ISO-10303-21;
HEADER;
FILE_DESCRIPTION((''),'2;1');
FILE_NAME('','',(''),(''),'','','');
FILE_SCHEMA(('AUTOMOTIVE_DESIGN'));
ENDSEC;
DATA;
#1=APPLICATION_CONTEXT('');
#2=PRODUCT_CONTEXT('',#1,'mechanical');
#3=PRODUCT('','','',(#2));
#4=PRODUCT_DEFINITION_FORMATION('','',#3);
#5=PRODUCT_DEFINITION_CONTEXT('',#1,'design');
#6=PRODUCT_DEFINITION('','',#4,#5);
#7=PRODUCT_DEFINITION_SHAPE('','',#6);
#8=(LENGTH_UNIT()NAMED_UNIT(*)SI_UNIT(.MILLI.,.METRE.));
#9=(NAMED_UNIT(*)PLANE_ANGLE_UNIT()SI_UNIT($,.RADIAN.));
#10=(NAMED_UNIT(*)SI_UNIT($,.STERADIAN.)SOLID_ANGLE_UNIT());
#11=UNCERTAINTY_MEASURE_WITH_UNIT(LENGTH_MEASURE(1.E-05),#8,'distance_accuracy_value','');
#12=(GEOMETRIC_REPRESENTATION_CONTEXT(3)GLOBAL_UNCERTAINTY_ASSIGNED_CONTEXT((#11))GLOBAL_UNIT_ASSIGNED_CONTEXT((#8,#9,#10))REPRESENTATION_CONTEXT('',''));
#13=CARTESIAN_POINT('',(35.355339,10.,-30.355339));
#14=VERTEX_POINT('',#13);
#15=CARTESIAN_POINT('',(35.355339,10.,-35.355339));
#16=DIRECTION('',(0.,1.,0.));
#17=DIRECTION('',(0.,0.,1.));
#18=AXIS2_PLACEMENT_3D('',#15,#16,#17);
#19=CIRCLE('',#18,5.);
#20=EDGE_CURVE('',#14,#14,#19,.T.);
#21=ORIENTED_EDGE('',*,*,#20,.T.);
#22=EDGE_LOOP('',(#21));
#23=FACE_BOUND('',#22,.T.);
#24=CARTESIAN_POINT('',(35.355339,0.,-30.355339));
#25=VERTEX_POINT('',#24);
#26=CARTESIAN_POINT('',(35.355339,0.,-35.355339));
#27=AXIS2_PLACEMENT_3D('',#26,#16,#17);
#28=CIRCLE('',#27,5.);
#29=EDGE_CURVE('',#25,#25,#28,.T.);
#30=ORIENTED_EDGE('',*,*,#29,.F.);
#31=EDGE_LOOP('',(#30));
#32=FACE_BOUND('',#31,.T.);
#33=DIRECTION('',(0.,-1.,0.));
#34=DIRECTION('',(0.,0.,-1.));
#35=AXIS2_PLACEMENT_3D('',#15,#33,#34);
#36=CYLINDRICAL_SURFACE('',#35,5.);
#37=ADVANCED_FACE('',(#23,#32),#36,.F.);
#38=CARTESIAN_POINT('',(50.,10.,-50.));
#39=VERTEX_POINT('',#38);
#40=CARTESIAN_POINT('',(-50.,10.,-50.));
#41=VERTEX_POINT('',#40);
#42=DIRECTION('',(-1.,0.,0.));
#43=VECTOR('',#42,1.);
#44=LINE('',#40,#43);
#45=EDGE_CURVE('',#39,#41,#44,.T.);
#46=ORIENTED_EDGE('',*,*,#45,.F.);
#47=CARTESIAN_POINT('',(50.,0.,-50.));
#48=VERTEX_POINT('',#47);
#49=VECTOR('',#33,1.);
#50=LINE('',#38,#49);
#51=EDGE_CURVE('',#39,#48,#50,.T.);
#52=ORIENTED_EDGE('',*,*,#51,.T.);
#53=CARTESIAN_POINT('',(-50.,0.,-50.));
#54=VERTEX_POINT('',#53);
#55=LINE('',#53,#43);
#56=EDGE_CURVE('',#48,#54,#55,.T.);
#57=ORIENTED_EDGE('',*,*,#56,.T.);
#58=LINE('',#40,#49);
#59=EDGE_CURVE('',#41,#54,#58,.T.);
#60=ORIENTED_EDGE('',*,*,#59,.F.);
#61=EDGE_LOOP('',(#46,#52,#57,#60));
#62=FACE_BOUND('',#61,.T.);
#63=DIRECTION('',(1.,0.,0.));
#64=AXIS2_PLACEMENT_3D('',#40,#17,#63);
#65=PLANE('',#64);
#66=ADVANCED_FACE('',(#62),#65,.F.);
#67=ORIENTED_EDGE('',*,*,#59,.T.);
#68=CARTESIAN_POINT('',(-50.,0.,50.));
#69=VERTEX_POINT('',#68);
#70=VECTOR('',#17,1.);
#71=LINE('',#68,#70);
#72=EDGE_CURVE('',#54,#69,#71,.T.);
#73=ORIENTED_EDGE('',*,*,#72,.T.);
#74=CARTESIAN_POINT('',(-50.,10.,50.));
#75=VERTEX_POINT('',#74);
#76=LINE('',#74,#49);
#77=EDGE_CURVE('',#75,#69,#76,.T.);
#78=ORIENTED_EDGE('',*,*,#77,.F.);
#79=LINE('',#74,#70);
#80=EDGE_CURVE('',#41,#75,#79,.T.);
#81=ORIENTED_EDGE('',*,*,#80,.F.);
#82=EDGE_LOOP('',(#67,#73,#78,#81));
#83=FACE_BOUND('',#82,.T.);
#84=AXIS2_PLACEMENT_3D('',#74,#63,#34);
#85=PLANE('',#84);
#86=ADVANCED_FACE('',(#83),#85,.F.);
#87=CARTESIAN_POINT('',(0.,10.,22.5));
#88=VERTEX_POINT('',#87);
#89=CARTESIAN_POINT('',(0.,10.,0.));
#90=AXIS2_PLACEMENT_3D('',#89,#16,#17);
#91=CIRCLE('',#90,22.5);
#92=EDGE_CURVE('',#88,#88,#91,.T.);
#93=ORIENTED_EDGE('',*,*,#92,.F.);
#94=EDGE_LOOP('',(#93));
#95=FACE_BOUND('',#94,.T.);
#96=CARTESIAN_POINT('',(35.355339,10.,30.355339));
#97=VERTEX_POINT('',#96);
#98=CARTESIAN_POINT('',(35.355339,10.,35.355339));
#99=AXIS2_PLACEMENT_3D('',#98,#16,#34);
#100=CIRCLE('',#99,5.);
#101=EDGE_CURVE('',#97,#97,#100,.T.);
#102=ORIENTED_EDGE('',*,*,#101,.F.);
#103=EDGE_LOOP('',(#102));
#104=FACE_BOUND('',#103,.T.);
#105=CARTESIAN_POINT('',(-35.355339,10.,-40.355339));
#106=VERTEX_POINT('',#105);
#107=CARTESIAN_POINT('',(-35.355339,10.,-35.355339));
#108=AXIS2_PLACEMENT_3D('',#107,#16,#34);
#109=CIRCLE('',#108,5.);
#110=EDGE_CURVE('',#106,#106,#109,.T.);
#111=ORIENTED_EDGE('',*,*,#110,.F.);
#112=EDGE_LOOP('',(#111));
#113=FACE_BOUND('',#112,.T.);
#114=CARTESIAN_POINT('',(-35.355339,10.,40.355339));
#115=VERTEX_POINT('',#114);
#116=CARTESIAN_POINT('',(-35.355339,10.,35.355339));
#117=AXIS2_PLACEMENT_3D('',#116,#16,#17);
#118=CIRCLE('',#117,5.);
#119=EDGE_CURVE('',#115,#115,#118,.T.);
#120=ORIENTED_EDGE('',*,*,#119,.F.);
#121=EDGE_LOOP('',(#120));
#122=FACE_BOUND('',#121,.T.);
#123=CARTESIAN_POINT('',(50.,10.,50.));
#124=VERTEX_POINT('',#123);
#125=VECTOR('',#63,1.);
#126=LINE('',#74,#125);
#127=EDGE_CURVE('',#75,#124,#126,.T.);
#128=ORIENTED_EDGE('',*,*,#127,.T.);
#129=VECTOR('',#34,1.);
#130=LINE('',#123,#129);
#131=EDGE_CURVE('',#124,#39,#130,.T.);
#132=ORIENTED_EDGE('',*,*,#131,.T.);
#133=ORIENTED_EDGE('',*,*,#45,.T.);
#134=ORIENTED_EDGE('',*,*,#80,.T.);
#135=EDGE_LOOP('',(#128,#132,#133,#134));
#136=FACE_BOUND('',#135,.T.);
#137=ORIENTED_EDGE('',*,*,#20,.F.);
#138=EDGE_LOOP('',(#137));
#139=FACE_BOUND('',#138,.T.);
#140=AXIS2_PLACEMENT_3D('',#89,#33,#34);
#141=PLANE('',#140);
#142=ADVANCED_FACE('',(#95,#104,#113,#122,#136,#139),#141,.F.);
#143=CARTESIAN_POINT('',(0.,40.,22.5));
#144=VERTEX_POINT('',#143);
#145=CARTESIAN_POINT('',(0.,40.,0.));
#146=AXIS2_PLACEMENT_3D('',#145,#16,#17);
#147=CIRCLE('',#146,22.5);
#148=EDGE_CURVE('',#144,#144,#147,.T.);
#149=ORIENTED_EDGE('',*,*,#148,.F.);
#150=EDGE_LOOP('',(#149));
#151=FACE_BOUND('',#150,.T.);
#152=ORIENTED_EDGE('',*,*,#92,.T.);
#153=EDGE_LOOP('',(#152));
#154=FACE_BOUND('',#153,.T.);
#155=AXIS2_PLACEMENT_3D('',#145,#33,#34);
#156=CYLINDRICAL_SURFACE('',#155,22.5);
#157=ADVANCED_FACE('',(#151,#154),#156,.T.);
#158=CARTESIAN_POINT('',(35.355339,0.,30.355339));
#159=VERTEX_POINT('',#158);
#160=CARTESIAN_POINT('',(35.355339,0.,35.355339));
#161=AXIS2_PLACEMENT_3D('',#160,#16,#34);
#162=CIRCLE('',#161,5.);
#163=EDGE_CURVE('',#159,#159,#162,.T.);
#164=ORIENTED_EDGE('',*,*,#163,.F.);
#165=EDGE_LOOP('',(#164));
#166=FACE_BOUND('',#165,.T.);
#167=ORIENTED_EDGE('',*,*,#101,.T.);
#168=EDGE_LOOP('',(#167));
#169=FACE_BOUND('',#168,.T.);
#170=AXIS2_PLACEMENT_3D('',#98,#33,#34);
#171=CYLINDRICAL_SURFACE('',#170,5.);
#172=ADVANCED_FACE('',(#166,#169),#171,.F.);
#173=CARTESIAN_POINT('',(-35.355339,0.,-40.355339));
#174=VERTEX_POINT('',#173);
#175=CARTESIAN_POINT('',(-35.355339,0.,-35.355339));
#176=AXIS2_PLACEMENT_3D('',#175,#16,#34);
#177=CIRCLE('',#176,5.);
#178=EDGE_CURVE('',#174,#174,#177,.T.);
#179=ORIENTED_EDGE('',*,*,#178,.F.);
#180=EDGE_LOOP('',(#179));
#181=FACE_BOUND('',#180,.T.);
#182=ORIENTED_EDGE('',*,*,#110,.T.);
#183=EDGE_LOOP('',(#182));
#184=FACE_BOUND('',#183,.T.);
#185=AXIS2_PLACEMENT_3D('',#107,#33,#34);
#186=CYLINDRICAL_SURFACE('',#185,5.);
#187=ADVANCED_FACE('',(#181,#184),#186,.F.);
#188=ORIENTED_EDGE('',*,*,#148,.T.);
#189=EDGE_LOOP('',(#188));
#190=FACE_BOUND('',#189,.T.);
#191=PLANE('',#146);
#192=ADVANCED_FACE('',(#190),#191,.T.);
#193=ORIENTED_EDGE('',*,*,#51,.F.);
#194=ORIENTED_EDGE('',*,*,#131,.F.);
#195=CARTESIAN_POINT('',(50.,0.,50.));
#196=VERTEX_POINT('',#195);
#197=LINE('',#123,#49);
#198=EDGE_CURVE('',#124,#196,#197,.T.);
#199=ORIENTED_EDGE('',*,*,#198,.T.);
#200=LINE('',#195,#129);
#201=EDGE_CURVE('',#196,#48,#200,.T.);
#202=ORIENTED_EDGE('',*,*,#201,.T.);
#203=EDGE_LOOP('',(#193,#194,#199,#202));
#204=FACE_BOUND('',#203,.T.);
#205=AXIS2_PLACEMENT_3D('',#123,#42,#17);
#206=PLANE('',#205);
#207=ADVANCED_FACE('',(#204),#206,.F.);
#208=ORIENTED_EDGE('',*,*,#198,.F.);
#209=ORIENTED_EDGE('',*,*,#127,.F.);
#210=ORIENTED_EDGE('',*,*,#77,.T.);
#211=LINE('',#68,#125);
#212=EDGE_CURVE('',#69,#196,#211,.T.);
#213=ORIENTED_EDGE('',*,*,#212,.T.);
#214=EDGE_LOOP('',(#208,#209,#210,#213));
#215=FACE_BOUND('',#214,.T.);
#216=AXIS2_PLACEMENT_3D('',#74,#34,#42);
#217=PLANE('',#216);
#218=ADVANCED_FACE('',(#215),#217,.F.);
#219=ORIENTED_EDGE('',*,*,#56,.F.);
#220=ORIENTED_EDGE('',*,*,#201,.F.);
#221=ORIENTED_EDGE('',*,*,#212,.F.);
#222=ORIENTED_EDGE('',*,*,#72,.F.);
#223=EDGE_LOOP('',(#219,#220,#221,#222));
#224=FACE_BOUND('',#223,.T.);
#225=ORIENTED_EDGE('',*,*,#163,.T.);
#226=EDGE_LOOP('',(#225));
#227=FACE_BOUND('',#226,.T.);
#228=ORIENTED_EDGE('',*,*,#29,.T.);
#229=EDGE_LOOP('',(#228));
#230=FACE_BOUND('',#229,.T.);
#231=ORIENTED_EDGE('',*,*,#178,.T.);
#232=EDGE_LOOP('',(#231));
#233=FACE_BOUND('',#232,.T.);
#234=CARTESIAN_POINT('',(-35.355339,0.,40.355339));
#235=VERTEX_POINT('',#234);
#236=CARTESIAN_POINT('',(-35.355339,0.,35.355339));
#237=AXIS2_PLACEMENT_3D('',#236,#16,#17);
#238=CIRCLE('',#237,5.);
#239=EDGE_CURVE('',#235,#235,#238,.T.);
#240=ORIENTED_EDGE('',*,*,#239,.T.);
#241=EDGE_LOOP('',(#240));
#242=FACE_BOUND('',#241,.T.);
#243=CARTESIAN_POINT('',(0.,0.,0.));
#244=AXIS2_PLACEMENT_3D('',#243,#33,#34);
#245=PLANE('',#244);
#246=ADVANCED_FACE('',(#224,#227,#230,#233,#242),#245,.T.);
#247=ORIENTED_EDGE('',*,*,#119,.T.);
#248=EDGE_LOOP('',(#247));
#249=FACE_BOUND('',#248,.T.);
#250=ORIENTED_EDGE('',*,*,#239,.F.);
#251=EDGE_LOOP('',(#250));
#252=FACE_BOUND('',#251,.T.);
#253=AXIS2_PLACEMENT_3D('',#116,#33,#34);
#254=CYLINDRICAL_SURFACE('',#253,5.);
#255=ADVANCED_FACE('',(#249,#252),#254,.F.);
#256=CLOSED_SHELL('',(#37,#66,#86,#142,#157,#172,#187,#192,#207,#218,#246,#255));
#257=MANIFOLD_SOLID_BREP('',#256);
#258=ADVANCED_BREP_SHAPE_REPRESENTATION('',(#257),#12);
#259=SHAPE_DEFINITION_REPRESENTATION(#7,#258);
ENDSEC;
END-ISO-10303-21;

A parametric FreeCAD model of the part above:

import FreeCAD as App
import Part
import Sketcher

V = App.Vector


def add_polygon(sketch, points):
    """Adds a closed chain of lines whose ends are joined by coincident constraints."""
    first, n = sketch.GeometryCount, len(points)
    for a, b in zip(points, points[1:] + points[:1]):
        sketch.addGeometry(Part.LineSegment(App.Vector(*a, 0), App.Vector(*b, 0)), False)
    for i in range(n):
        sketch.addConstraint(Sketcher.Constraint("Coincident", first + i, 2, first + (i + 1) % n, 1))

doc = App.newDocument("Part")
body = doc.addObject("PartDesign::Body", "Body")

# Sketch on XZ plane
sketch1 = body.newObject("Sketcher::SketchObject", "Sketch")
sketch1.AttachmentSupport = (doc.getObject("XZ_Plane"), [""])
sketch1.MapMode = "FlatFace"
add_polygon(sketch1, [(-50, -50), (-50, 50), (50, 50), (50, -50)])  # lines 0-3
sketch1.addGeometry(Part.Circle(V(-35, 35, 0), V(0, 0, 1), 5), False)  # 4
sketch1.addGeometry(Part.Circle(V(35, 35, 0), V(0, 0, 1), 5), False)  # 5
sketch1.addGeometry(Part.Circle(V(-35, -35, 0), V(0, 0, 1), 5), False)  # 6
sketch1.addGeometry(Part.Circle(V(35, -35, 0), V(0, 0, 1), 5), False)  # 7
sketch1.addConstraint([
    Sketcher.Constraint("Vertical", 0),
    Sketcher.Constraint("Horizontal", 1),
    Sketcher.Constraint("Vertical", 2),
    Sketcher.Constraint("Horizontal", 3),
    Sketcher.Constraint("Equal", 4, 5),
    Sketcher.Constraint("Equal", 5, 6),
    Sketcher.Constraint("Equal", 6, 7),
    Sketcher.Constraint("Symmetric", 5, 3, 6, 3, -1, 1),
    Sketcher.Constraint("Symmetric", 4, 3, 7, 3, -1, 1),
    Sketcher.Constraint("Symmetric", 0, 2, 2, 2, -1, 1),
    Sketcher.Constraint("Symmetric", 4, 3, 5, 3, -2),
    Sketcher.Constraint("Equal", 3, 0),
    Sketcher.Constraint("Diameter", 4, 10.0),
    Sketcher.Constraint("DistanceX", 1, 1, 1, 2, 100.0),
    Sketcher.Constraint("DistanceX", 4, 3, -1, 1, 35.355339),
    Sketcher.Constraint("DistanceY", -1, 1, 4, 3, 35.355339),
])
pad1 = body.newObject("PartDesign::Pad", "Pad")
pad1.Profile = sketch1
pad1.Length = 10
pad1.Reversed = True

# Sketch on XZ plane
sketch2 = body.newObject("Sketcher::SketchObject", "Sketch001")
sketch2.AttachmentSupport = (doc.getObject("XZ_Plane"), [""])
sketch2.MapMode = "FlatFace"
sketch2.AttachmentOffset = App.Placement(V(0, 0, -10), App.Rotation())
sketch2.addGeometry(Part.Circle(V(0, 0, 0), V(0, 0, 1), 22), False)
sketch2.addConstraint([
    Sketcher.Constraint("Coincident", 0, 3, -1, 1),
    Sketcher.Constraint("Diameter", 0, 45.0),
])
pad2 = body.newObject("PartDesign::Pad", "Pad001")
pad2.Profile = sketch2
pad2.Length = 30
pad2.Reversed = True

doc.recompute()
